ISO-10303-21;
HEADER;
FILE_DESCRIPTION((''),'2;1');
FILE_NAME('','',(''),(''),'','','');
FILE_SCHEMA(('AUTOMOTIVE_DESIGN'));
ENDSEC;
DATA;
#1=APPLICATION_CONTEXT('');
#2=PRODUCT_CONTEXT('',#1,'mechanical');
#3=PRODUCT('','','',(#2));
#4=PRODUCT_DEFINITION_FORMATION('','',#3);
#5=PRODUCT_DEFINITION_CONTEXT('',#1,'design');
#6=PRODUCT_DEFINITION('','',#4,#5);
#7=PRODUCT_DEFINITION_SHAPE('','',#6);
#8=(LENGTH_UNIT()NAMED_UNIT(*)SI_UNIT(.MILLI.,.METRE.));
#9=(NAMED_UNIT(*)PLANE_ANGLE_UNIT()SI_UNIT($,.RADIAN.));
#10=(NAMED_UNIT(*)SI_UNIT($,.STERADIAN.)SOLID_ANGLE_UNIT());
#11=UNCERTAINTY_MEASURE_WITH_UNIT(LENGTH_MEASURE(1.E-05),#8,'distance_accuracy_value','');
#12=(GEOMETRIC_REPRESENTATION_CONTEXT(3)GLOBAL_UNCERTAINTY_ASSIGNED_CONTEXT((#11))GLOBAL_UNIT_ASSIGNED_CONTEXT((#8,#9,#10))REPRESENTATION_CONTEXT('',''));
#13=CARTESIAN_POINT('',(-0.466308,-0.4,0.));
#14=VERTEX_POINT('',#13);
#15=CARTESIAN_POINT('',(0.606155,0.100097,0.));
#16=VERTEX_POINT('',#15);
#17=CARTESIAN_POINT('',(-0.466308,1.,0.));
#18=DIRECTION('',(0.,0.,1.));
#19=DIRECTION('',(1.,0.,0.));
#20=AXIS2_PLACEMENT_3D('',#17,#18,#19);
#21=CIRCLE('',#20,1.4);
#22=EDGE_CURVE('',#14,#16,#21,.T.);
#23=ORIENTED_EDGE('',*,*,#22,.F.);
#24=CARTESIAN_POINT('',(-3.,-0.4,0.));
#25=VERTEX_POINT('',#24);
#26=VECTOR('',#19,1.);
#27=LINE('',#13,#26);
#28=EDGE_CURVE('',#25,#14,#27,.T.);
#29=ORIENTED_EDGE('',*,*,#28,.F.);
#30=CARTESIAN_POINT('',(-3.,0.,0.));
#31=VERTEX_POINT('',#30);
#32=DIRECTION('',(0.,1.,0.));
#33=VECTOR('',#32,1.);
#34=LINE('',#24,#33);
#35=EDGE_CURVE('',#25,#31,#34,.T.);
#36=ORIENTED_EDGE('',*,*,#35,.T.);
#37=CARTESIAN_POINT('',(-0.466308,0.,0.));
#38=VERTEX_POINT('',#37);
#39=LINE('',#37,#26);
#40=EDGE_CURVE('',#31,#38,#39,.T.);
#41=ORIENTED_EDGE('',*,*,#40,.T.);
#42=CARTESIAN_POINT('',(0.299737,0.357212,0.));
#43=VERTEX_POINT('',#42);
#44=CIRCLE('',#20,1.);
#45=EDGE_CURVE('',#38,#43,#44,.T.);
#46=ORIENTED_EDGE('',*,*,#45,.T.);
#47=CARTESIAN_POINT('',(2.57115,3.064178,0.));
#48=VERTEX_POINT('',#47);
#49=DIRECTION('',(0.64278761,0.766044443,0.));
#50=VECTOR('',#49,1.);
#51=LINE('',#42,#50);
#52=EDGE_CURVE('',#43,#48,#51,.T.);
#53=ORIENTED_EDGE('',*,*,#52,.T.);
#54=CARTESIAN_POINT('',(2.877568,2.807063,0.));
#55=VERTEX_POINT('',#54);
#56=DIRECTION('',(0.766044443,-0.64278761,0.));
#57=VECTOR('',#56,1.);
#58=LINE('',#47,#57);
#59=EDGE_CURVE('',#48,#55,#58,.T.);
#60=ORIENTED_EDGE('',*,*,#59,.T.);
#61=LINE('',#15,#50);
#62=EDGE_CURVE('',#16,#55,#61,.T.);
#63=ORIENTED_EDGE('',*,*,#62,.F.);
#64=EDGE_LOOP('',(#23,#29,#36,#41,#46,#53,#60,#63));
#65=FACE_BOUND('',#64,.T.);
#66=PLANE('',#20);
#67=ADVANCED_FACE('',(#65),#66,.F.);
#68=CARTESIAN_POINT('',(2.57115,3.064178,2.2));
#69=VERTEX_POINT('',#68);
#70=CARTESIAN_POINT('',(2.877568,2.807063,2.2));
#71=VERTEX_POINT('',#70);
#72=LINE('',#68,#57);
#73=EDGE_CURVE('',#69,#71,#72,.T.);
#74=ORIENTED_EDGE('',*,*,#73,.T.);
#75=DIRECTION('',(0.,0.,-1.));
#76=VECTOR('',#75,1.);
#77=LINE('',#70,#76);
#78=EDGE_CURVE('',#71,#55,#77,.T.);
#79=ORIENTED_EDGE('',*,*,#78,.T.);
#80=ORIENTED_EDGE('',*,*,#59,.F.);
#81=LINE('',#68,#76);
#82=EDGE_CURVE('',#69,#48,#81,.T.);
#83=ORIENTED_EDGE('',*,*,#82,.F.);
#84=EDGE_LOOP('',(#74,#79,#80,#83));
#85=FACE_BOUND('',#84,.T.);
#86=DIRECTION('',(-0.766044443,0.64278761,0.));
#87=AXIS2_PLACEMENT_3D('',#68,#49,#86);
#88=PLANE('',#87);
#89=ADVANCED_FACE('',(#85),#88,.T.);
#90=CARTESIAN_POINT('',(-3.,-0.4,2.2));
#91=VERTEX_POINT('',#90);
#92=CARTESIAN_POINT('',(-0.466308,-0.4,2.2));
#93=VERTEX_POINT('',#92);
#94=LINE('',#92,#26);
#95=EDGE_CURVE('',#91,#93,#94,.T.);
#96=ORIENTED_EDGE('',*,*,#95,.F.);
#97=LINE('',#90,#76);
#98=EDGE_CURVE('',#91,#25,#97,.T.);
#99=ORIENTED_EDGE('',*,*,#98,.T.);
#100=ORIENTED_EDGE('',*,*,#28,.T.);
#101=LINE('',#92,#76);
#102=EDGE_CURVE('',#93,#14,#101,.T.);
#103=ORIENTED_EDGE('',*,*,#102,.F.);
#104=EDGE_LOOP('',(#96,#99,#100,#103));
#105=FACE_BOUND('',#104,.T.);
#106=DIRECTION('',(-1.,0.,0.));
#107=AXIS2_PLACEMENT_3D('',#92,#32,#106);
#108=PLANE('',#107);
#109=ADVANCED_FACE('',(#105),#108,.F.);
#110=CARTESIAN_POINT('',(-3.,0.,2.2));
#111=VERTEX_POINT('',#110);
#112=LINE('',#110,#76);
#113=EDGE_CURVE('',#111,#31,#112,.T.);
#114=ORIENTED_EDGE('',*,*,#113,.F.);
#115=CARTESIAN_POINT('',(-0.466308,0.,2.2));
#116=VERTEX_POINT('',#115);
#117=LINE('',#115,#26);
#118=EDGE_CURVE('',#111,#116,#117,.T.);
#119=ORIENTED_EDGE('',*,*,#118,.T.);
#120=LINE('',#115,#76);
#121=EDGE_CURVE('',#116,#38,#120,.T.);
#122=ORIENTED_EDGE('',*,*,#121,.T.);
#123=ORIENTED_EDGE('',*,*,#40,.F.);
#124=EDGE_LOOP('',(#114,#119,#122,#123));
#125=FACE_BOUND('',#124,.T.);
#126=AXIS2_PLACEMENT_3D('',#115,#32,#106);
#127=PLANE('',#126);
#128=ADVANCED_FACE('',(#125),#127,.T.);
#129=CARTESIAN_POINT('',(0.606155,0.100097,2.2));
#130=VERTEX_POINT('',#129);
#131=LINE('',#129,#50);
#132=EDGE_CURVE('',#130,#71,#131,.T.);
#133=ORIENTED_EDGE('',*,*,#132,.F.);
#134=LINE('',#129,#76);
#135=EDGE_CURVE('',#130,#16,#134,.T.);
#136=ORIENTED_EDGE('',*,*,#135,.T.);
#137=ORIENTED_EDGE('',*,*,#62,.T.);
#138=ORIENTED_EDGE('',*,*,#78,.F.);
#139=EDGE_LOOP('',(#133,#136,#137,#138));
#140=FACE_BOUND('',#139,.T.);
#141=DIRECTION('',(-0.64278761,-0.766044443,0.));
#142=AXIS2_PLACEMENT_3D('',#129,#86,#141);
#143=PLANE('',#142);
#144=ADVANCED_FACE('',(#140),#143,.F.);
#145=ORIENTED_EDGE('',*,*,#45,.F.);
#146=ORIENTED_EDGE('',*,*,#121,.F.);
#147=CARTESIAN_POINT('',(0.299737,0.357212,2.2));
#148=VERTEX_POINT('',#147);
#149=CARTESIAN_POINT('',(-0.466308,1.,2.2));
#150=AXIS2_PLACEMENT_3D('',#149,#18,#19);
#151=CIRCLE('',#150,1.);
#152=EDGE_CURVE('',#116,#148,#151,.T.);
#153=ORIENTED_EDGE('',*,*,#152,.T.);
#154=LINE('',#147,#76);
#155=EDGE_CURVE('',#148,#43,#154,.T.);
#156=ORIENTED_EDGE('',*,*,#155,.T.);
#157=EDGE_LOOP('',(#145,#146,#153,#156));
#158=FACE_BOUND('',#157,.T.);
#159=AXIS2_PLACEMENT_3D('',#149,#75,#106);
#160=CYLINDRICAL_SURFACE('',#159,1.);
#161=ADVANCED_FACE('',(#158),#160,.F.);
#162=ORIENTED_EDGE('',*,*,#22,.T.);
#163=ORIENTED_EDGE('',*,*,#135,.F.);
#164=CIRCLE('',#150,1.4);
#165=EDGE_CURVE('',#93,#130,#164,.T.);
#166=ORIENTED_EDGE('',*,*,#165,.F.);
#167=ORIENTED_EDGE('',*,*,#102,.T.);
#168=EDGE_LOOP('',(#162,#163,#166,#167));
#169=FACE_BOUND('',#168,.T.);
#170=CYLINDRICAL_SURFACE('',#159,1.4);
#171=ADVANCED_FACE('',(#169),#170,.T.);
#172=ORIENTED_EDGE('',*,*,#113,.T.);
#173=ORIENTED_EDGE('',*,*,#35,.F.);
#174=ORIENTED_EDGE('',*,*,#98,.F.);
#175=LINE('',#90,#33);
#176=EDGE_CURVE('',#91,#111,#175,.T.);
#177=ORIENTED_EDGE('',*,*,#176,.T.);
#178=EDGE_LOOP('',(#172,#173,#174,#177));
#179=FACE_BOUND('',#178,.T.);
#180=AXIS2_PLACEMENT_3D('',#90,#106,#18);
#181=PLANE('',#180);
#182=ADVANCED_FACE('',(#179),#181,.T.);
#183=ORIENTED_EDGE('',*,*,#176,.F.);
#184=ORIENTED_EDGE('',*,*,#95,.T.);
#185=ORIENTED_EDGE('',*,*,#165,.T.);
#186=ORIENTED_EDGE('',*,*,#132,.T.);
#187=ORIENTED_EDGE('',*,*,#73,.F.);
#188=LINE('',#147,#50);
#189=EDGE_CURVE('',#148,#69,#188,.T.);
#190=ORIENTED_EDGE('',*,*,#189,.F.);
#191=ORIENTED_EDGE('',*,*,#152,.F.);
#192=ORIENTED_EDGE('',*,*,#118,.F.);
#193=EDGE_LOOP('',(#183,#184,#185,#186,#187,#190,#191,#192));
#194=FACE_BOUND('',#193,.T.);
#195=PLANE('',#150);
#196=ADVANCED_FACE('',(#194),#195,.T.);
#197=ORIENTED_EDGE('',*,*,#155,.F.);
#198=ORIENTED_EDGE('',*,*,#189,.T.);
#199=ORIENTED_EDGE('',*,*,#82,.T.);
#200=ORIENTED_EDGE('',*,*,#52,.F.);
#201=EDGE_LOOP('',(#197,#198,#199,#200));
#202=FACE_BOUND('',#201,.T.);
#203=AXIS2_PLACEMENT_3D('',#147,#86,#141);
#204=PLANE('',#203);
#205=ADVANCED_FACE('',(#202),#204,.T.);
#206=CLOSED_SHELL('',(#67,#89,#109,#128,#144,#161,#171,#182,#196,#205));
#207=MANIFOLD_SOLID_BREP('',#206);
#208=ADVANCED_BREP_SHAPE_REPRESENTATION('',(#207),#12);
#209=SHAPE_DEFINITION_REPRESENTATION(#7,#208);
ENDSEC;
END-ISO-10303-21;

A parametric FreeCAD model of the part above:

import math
import FreeCAD as App
import Part
import Sketcher
Q = App.Units.Quantity

doc = App.newDocument("Part")
params = doc.addObject("Spreadsheet::Sheet", "Params")
for row, (alias, value) in enumerate([
    ("sketch1_radius", "1 mm"),
    ("sketch1_radius2", "1.4 mm"),
    ("pad1_length", "2.2 mm"),
], start=1):
    params.set(f"A{row}", alias)
    params.set(f"B{row}", "=" + value)
    params.setAlias(f"B{row}", alias)

body = doc.addObject("PartDesign::Body", "Body")

sketch1 = doc.addObject("Sketcher::SketchObject", "Sketch")
body.addObject(sketch1)
sketch1.AttachmentSupport = (doc.XY_Plane, [""])
sketch1.MapMode = "FlatFace"
sketch1.addGeometry(Part.LineSegment(App.Vector(2.57, 3.06, 0), App.Vector(0.3, 0.36, 0)), False)
sketch1.addGeometry(Part.ArcOfCircle(Part.Circle(App.Vector(-0.47, 1, 0), App.Vector(0, 0, 1), 1), math.radians(-90), math.radians(-40)), False)
sketch1.addGeometry(Part.LineSegment(App.Vector(-0.47, 0, 0), App.Vector(-3, 0, 0)), False)
sketch1.addGeometry(Part.LineSegment(App.Vector(-3, 0, 0), App.Vector(-3, -0.4, 0)), False)
sketch1.addGeometry(Part.LineSegment(App.Vector(-3, -0.4, 0), App.Vector(-0.47, -0.4, 0)), False)
sketch1.addGeometry(Part.ArcOfCircle(Part.Circle(App.Vector(-0.47, 1, 0), App.Vector(0, 0, 1), 1.4), math.radians(-90), math.radians(-40)), False)
sketch1.addGeometry(Part.LineSegment(App.Vector(0.61, 0.1, 0), App.Vector(2.88, 2.81, 0)), False)
sketch1.addGeometry(Part.LineSegment(App.Vector(2.88, 2.81, 0), App.Vector(2.57, 3.06, 0)), False)
sketch1.addConstraint(Sketcher.Constraint("Tangent", 0, 2, 1, 2))
sketch1.addConstraint(Sketcher.Constraint("Tangent", 1, 1, 2, 1))
sketch1.addConstraint(Sketcher.Constraint("Coincident", 2, 2, 3, 1))
sketch1.addConstraint(Sketcher.Constraint("Coincident", 3, 2, 4, 1))
sketch1.addConstraint(Sketcher.Constraint("Tangent", 4, 2, 5, 1))
sketch1.addConstraint(Sketcher.Constraint("Tangent", 5, 2, 6, 1))
sketch1.addConstraint(Sketcher.Constraint("Coincident", 6, 2, 7, 1))
sketch1.addConstraint(Sketcher.Constraint("Coincident", 7, 2, 0, 1))
sketch1.addConstraint(Sketcher.Constraint("Horizontal", 2))
sketch1.addConstraint(Sketcher.Constraint("Vertical", 3))
sketch1.addConstraint(Sketcher.Constraint("Horizontal", 4))
sketch1.addConstraint(Sketcher.Constraint("Coincident", 5, 3, 1, 3))
sketch1.addConstraint(Sketcher.Constraint("PointOnObject", 1, 1, -1))
sketch1.addConstraint(Sketcher.Constraint("Parallel", 0, 6))
sketch1.addConstraint(Sketcher.Constraint("Perpendicular", 6, 7))
sketch1.addConstraint(Sketcher.Constraint("Radius", 1, Q("1 mm")))
sketch1.addConstraint(Sketcher.Constraint("Radius", 5, Q("1.4 mm")))
sketch1.addConstraint(Sketcher.Constraint("Angle", 0, Q("-130 deg")))
sketch1.addConstraint(Sketcher.Constraint("DistanceX", 2, 2, -1, 1, Q("3 mm")))
sketch1.addConstraint(Sketcher.Constraint("DistanceX", 2, 2, 2, 1, Q("2.533692 mm")))
sketch1.addConstraint(Sketcher.Constraint("DistanceX", -1, 1, 6, 2, Q("2.877568 mm")))
sketch1.setExpression("Constraints[15]", "Params.sketch1_radius")
sketch1.setExpression("Constraints[16]", "Params.sketch1_radius2")
pad1 = doc.addObject("PartDesign::Pad", "Pad")
body.addObject(pad1)
pad1.Profile = sketch1
pad1.setExpression("Length", "Params.pad1_length")

doc.recompute()
